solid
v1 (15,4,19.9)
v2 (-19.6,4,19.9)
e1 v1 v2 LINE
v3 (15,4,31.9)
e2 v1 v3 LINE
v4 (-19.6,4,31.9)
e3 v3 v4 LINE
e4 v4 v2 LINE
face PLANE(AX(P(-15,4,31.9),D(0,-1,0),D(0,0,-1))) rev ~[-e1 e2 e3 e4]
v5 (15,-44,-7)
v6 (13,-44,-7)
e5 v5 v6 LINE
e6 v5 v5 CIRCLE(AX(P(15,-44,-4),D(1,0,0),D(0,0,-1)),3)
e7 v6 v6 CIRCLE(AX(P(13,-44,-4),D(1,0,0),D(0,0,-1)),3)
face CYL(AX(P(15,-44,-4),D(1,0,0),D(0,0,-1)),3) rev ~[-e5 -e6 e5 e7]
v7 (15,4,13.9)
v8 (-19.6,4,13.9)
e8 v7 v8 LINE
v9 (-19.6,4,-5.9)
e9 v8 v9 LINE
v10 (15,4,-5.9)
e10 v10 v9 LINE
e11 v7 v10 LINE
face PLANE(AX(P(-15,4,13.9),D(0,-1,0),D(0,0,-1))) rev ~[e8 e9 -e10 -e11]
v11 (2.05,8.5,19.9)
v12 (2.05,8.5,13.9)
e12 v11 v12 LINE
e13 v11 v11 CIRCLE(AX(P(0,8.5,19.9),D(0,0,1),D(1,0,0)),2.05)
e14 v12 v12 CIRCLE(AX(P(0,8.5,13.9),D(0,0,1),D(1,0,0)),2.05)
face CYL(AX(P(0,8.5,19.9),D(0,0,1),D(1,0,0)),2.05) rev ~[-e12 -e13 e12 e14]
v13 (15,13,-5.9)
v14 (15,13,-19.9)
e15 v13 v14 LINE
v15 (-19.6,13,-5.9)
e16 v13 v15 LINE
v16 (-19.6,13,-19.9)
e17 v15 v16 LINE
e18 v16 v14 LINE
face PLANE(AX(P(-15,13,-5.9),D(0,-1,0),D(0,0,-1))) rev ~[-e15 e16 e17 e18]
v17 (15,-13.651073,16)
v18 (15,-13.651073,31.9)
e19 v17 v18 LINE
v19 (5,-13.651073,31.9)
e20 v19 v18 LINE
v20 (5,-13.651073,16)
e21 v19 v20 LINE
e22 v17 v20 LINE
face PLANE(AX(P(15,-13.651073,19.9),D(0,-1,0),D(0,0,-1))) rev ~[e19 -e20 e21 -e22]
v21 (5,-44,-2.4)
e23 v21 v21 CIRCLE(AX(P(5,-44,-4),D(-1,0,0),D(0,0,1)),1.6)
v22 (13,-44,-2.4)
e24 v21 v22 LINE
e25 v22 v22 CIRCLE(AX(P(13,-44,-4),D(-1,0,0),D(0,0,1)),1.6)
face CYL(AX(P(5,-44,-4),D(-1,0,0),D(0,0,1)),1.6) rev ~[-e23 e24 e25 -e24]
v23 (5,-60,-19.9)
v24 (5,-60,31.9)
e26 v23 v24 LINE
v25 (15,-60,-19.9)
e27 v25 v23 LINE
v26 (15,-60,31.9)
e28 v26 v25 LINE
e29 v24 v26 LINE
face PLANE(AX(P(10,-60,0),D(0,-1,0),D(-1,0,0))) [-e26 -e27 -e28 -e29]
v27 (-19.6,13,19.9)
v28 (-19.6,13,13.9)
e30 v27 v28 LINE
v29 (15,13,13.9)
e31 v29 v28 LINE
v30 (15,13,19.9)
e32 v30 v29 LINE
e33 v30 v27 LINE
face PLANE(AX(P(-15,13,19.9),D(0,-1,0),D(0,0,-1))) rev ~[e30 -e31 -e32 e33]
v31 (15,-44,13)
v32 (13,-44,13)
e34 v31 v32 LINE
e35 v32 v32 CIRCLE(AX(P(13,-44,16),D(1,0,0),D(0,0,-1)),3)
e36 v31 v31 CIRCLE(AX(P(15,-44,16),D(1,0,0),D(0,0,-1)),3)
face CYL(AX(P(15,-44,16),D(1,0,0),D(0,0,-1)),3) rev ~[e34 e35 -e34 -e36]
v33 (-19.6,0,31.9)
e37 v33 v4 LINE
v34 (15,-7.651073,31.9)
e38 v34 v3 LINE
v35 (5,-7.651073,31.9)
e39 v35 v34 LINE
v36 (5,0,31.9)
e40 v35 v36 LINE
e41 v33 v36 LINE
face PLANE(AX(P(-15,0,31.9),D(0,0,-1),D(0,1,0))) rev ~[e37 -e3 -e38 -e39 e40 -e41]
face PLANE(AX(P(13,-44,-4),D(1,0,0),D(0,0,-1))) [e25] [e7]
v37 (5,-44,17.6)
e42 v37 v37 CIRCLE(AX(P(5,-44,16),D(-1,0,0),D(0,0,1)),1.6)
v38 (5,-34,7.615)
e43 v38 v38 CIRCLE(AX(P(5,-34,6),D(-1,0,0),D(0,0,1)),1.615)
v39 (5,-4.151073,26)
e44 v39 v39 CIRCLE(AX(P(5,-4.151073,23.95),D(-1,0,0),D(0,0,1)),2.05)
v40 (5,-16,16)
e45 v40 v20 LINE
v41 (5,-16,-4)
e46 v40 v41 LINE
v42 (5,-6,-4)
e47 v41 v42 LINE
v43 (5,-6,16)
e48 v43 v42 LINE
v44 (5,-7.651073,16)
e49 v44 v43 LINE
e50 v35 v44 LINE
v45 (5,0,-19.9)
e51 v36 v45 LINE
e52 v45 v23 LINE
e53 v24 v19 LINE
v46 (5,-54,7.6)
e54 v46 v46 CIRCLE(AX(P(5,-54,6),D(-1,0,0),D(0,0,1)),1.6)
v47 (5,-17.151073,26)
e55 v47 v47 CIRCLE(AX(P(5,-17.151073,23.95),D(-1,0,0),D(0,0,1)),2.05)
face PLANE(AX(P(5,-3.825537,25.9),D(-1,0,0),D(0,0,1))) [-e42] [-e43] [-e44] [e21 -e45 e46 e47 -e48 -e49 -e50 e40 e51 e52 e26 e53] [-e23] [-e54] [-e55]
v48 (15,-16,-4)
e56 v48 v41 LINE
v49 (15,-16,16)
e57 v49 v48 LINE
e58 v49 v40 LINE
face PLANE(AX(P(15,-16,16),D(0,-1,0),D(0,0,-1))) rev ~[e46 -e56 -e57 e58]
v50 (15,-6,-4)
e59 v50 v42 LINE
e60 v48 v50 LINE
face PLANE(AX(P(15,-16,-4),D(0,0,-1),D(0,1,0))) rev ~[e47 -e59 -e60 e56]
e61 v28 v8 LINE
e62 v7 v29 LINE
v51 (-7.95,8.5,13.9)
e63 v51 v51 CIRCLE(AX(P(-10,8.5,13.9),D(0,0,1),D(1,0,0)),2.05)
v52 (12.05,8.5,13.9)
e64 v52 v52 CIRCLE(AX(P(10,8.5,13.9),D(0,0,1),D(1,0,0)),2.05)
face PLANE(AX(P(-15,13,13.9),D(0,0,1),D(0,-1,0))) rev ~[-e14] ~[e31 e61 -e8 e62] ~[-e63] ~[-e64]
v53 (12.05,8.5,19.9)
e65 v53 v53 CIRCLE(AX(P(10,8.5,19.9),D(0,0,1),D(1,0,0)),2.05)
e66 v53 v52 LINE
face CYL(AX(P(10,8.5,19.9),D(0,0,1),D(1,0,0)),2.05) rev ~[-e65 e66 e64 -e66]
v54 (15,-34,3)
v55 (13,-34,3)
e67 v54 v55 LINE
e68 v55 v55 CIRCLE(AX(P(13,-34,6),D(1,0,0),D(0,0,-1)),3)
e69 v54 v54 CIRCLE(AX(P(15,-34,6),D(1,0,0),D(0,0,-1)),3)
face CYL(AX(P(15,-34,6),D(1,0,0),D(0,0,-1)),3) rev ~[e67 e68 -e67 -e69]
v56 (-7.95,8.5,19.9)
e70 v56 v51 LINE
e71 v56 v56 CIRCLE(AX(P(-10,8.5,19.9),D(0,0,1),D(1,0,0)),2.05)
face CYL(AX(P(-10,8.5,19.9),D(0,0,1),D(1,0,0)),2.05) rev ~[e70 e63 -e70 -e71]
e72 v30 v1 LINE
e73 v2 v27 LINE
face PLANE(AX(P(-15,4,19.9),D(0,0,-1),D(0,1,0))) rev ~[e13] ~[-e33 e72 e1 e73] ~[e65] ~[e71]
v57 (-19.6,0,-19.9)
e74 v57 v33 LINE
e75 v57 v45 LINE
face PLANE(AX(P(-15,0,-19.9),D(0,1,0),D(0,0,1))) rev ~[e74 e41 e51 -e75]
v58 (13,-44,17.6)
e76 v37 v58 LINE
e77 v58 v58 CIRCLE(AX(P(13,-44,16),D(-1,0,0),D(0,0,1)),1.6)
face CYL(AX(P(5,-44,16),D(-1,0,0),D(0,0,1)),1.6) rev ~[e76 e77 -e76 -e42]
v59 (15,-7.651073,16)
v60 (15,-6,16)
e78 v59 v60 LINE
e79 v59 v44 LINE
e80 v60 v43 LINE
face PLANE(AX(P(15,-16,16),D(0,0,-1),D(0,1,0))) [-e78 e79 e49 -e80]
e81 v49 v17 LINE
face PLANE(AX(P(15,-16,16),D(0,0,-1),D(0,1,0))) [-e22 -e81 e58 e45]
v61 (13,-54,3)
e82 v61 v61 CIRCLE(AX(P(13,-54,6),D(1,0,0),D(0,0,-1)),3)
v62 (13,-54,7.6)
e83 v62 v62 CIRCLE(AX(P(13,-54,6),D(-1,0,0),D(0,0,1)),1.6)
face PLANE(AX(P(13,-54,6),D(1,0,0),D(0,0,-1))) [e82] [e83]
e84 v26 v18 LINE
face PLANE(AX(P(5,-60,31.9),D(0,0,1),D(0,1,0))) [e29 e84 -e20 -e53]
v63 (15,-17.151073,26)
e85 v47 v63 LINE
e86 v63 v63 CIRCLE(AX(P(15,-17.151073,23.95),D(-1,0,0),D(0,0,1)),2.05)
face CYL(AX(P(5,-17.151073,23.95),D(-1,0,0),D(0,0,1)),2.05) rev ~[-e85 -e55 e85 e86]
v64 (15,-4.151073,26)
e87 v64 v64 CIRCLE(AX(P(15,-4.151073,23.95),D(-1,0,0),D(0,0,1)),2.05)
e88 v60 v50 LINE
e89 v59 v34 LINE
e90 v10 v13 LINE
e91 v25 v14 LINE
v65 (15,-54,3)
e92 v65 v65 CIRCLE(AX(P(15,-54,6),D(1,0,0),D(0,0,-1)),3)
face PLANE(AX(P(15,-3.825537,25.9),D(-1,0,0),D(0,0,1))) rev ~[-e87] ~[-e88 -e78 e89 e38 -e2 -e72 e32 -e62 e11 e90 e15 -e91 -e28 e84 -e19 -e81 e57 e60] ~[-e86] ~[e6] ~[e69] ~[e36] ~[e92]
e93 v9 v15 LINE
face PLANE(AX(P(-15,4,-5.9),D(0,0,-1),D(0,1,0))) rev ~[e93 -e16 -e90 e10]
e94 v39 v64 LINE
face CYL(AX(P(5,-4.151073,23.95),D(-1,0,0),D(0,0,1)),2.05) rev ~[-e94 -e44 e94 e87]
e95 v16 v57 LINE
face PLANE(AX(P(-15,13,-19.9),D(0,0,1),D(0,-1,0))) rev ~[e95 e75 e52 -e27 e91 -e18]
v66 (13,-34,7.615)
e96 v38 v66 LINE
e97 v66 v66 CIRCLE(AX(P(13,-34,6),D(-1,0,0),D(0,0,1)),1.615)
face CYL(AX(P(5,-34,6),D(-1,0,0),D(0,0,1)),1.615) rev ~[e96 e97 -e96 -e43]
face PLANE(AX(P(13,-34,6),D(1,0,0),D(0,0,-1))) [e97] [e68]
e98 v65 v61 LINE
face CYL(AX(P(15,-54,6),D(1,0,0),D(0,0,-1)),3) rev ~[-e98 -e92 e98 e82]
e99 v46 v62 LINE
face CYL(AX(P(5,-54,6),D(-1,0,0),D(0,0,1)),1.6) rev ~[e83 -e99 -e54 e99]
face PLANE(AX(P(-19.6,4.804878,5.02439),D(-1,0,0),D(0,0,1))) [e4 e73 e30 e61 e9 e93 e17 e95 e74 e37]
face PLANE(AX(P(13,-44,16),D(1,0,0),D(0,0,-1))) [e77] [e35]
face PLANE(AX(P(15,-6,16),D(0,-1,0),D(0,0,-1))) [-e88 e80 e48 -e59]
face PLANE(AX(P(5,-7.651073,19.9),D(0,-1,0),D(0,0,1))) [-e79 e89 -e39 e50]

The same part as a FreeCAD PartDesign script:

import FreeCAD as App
import Part
import Sketcher

V = App.Vector
Q = App.Units.Quantity

doc = App.newDocument("Part")
body = doc.addObject("PartDesign::Body", "Body")

sketch1 = body.newObject("Sketcher::SketchObject", "Sketch")
sketch1.AttachmentSupport = (doc.getObject("XZ_Plane"), [""])
sketch1.MapMode = "FlatFace"
sketch1.addGeometry(Part.LineSegment(V(-15, -20, 0), V(-15, 20, 0)), False)
sketch1.addGeometry(Part.LineSegment(V(-15, 20, 0), V(15, 20, 0)), False)
sketch1.addGeometry(Part.LineSegment(V(15, 20, 0), V(15, -20, 0)), False)
sketch1.addGeometry(Part.LineSegment(V(15, -20, 0), V(-15, -20, 0)), False)
sketch1.addConstraint(Sketcher.Constraint("Coincident", 0, 2, 1, 1))
sketch1.addConstraint(Sketcher.Constraint("Coincident", 1, 2, 2, 1))
sketch1.addConstraint(Sketcher.Constraint("Coincident", 2, 2, 3, 1))
sketch1.addConstraint(Sketcher.Constraint("Coincident", 3, 2, 0, 1))
sketch1.addConstraint(Sketcher.Constraint("Vertical", 0))
sketch1.addConstraint(Sketcher.Constraint("Horizontal", 1))
sketch1.addConstraint(Sketcher.Constraint("Vertical", 2))
sketch1.addConstraint(Sketcher.Constraint("Horizontal", 3))
sketch1.addConstraint(Sketcher.Constraint("Symmetric", 0, 2, 2, 2, -1, 1))
sketch1.addConstraint(Sketcher.Constraint("DistanceX", 1, 1, 1, 2, Q("30 mm")))
sketch1.addConstraint(Sketcher.Constraint("DistanceY", 0, 1, 0, 2, Q("39.8 mm")))
pad1 = body.newObject("PartDesign::Pad", "Pad")
pad1.Profile = sketch1
pad1.Length = 4
pad1.Reversed = True

sketch2 = body.newObject("Sketcher::SketchObject", "Sketch001")
sketch2.AttachmentSupport = (doc.getObject("XZ_Plane"), [""])
sketch2.MapMode = "FlatFace"
sketch2.AttachmentOffset = App.Placement(V(0, 0, -4), App.Rotation())
sketch2.addGeometry(Part.LineSegment(V(-15, -20, 0), V(-15, -6, 0)), False)
sketch2.addGeometry(Part.LineSegment(V(-15, -6, 0), V(15, -6, 0)), False)
sketch2.addGeometry(Part.LineSegment(V(15, -6, 0), V(15, -20, 0)), False)
sketch2.addGeometry(Part.LineSegment(V(15, -20, 0), V(-15, -20, 0)), False)
sketch2.addConstraint(Sketcher.Constraint("Coincident", 0, 2, 1, 1))
sketch2.addConstraint(Sketcher.Constraint("Coincident", 1, 2, 2, 1))
sketch2.addConstraint(Sketcher.Constraint("Coincident", 2, 2, 3, 1))
sketch2.addConstraint(Sketcher.Constraint("Coincident", 3, 2, 0, 1))
sketch2.addConstraint(Sketcher.Constraint("Vertical", 0))
sketch2.addConstraint(Sketcher.Constraint("Horizontal", 1))
sketch2.addConstraint(Sketcher.Constraint("Vertical", 2))
sketch2.addConstraint(Sketcher.Constraint("Horizontal", 3))
sketch2.addConstraint(Sketcher.Constraint("DistanceX", 1, 1, 1, 2, Q("30 mm")))
sketch2.addConstraint(Sketcher.Constraint("DistanceY", 0, 1, 0, 2, Q("14 mm")))
sketch2.addConstraint(Sketcher.Constraint("DistanceX", 0, 2, -1, 1, Q("15 mm")))
sketch2.addConstraint(Sketcher.Constraint("DistanceY", 0, 2, -1, 1, Q("5.9 mm")))
pad2 = body.newObject("PartDesign::Pad", "Pad001")
pad2.Profile = sketch2
pad2.Length = 9
pad2.Reversed = True

sketch3 = body.newObject("Sketcher::SketchObject", "Sketch002")
sketch3.AttachmentSupport = (doc.getObject("XZ_Plane"), [""])
sketch3.MapMode = "FlatFace"
sketch3.AttachmentOffset = App.Placement(V(0, 0, -4), App.Rotation())
sketch3.addGeometry(Part.LineSegment(V(-15, 14, 0), V(-15, 20, 0)), False)
sketch3.addGeometry(Part.LineSegment(V(-15, 20, 0), V(15, 20, 0)), False)
sketch3.addGeometry(Part.LineSegment(V(15, 20, 0), V(15, 14, 0)), False)
sketch3.addGeometry(Part.LineSegment(V(15, 14, 0), V(-15, 14, 0)), False)
sketch3.addConstraint(Sketcher.Constraint("Coincident", 0, 2, 1, 1))
sketch3.addConstraint(Sketcher.Constraint("Coincident", 1, 2, 2, 1))
sketch3.addConstraint(Sketcher.Constraint("Coincident", 2, 2, 3, 1))
sketch3.addConstraint(Sketcher.Constraint("Coincident", 3, 2, 0, 1))
sketch3.addConstraint(Sketcher.Constraint("Vertical", 0))
sketch3.addConstraint(Sketcher.Constraint("Horizontal", 1))
sketch3.addConstraint(Sketcher.Constraint("Vertical", 2))
sketch3.addConstraint(Sketcher.Constraint("Horizontal", 3))
sketch3.addConstraint(Sketcher.Constraint("DistanceX", 1, 1, 1, 2, Q("30 mm")))
sketch3.addConstraint(Sketcher.Constraint("DistanceY", 0, 1, 0, 2, Q("6 mm")))
sketch3.addConstraint(Sketcher.Constraint("DistanceX", 0, 2, -1, 1, Q("15 mm")))
sketch3.addConstraint(Sketcher.Constraint("DistanceY", -1, 1, 0, 2, Q("19.9 mm")))
pad3 = body.newObject("PartDesign::Pad", "Pad002")
pad3.Profile = sketch3
pad3.Length = 9
pad3.Reversed = True

sketch4 = body.newObject("Sketcher::SketchObject", "Sketch003")
sketch4.AttachmentSupport = (doc.getObject("XZ_Plane"), [""])
sketch4.MapMode = "FlatFace"
sketch4.addGeometry(Part.LineSegment(V(15, -20, 0), V(15, 20, 0)), False)
sketch4.addGeometry(Part.LineSegment(V(15, 20, 0), V(5, 20, 0)), False)
sketch4.addGeometry(Part.LineSegment(V(5, 20, 0), V(5, -20, 0)), False)
sketch4.addGeometry(Part.LineSegment(V(5, -20, 0), V(15, -20, 0)), False)
sketch4.addConstraint(Sketcher.Constraint("Coincident", 0, 2, 1, 1))
sketch4.addConstraint(Sketcher.Constraint("Coincident", 1, 2, 2, 1))
sketch4.addConstraint(Sketcher.Constraint("Coincident", 2, 2, 3, 1))
sketch4.addConstraint(Sketcher.Constraint("Coincident", 3, 2, 0, 1))
sketch4.addConstraint(Sketcher.Constraint("Vertical", 0))
sketch4.addConstraint(Sketcher.Constraint("Horizontal", 1))
sketch4.addConstraint(Sketcher.Constraint("Vertical", 2))
sketch4.addConstraint(Sketcher.Constraint("Horizontal", 3))
sketch4.addConstraint(Sketcher.Constraint("DistanceX", 1, 2, 1, 1, Q("10 mm")))
sketch4.addConstraint(Sketcher.Constraint("DistanceY", 0, 1, 0, 2, Q("39.8 mm")))
sketch4.addConstraint(Sketcher.Constraint("DistanceX", -1, 1, 0, 2, Q("15 mm")))
sketch4.addConstraint(Sketcher.Constraint("DistanceY", -1, 1, 0, 2, Q("19.9 mm")))
pad4 = body.newObject("PartDesign::Pad", "Pad003")
pad4.Profile = sketch4
pad4.Length = 60

sketch5 = body.newObject("Sketcher::SketchObject", "Sketch004")
sketch5.AttachmentSupport = (doc.getObject("YZ_Plane"), [""])
sketch5.MapMode = "FlatFace"
sketch5.AttachmentOffset = App.Placement(V(0, 0, 15), App.Rotation())
sketch5.addGeometry(Part.LineSegment(V(-6, 16, 0), V(-16, 16, 0)), False)
sketch5.addGeometry(Part.LineSegment(V(-16, 16, 0), V(-16, -4, 0)), False)
sketch5.addGeometry(Part.LineSegment(V(-16, -4, 0), V(-6, -4, 0)), False)
sketch5.addGeometry(Part.LineSegment(V(-6, -4, 0), V(-6, 16, 0)), False)
sketch5.addConstraint(Sketcher.Constraint("Coincident", 0, 2, 1, 1))
sketch5.addConstraint(Sketcher.Constraint("Coincident", 1, 2, 2, 1))
sketch5.addConstraint(Sketcher.Constraint("Coincident", 2, 2, 3, 1))
sketch5.addConstraint(Sketcher.Constraint("Coincident", 3, 2, 0, 1))
sketch5.addConstraint(Sketcher.Constraint("Horizontal", 0))
sketch5.addConstraint(Sketcher.Constraint("Vertical", 1))
sketch5.addConstraint(Sketcher.Constraint("Horizontal", 2))
sketch5.addConstraint(Sketcher.Constraint("Vertical", 3))
sketch5.addConstraint(Sketcher.Constraint("DistanceX", 0, 2, 0, 1, Q("10 mm")))
sketch5.addConstraint(Sketcher.Constraint("DistanceY", 1, 2, 1, 1, Q("20 mm")))
sketch5.addConstraint(Sketcher.Constraint("DistanceX", 0, 2, -1, 1, Q("16 mm")))
sketch5.addConstraint(Sketcher.Constraint("DistanceY", -1, 1, 0, 2, Q("16 mm")))
pocket1 = body.newObject("PartDesign::Pocket", "Pocket")
pocket1.Profile = sketch5
pocket1.Type = "ThroughAll"

sketch6 = body.newObject("Sketcher::SketchObject", "Sketch005")
sketch6.AttachmentSupport = (doc.getObject("YZ_Plane"), [""])
sketch6.MapMode = "FlatFace"
sketch6.AttachmentOffset = App.Placement(V(0, 0, 15), App.Rotation())
sketch6.addGeometry(Part.LineSegment(V(-7.7, 19.9, 0), V(-13.7, 19.9, 0)), False)
sketch6.addGeometry(Part.LineSegment(V(-13.7, 19.9, 0), V(-13.7, 16, 0)), False)
sketch6.addGeometry(Part.LineSegment(V(-13.7, 16, 0), V(-7.7, 16, 0)), False)
sketch6.addGeometry(Part.LineSegment(V(-7.7, 16, 0), V(-7.7, 19.9, 0)), False)
sketch6.addConstraint(Sketcher.Constraint("Coincident", 0, 2, 1, 1))
sketch6.addConstraint(Sketcher.Constraint("Coincident", 1, 2, 2, 1))
sketch6.addConstraint(Sketcher.Constraint("Coincident", 2, 2, 3, 1))
sketch6.addConstraint(Sketcher.Constraint("Coincident", 3, 2, 0, 1))
sketch6.addConstraint(Sketcher.Constraint("Horizontal", 0))
sketch6.addConstraint(Sketcher.Constraint("Vertical", 1))
sketch6.addConstraint(Sketcher.Constraint("Horizontal", 2))
sketch6.addConstraint(Sketcher.Constraint("Vertical", 3))
sketch6.addConstraint(Sketcher.Constraint("DistanceX", 0, 2, 0, 1, Q("6 mm")))
sketch6.addConstraint(Sketcher.Constraint("DistanceY", 1, 2, 1, 1, Q("3.9 mm")))
sketch6.addConstraint(Sketcher.Constraint("DistanceY", -1, 1, 1, 2, Q("16 mm")))
sketch6.addConstraint(Sketcher.Constraint("DistanceX", 0, 2, -1, 1, Q("13.651073 mm")))
pocket2 = body.newObject("PartDesign::Pocket", "Pocket001")
pocket2.Profile = sketch6
pocket2.Type = "ThroughAll"

sketch7 = body.newObject("Sketcher::SketchObject", "Sketch006")
sketch7.AttachmentSupport = (doc.getObject("YZ_Plane"), [""])
sketch7.MapMode = "FlatFace"
sketch7.AttachmentOffset = App.Placement(V(0, 0, -15), App.Rotation())
sketch7.addGeometry(Part.LineSegment(V(4, 19.9, 0), V(0, 19.9, 0)), False)
sketch7.addGeometry(Part.LineSegment(V(0, 19.9, 0), V(0, 31.9, 0)), False)
sketch7.addGeometry(Part.LineSegment(V(0, 31.9, 0), V(4, 31.9, 0)), False)
sketch7.addGeometry(Part.LineSegment(V(4, 31.9, 0), V(4, 19.9, 0)), False)
sketch7.addConstraint(Sketcher.Constraint("Coincident", 0, 2, 1, 1))
sketch7.addConstraint(Sketcher.Constraint("Coincident", 1, 2, 2, 1))
sketch7.addConstraint(Sketcher.Constraint("Coincident", 2, 2, 3, 1))
sketch7.addConstraint(Sketcher.Constraint("Coincident", 3, 2, 0, 1))
sketch7.addConstraint(Sketcher.Constraint("Horizontal", 0))
sketch7.addConstraint(Sketcher.Constraint("Vertical", 1))
sketch7.addConstraint(Sketcher.Constraint("Horizontal", 2))
sketch7.addConstraint(Sketcher.Constraint("Vertical", 3))
sketch7.addConstraint(Sketcher.Constraint("PointOnObject", 0, 2, -2))
sketch7.addConstraint(Sketcher.Constraint("DistanceX", 0, 2, 0, 1, Q("4 mm")))
sketch7.addConstraint(Sketcher.Constraint("DistanceY", 1, 1, 1, 2, Q("12 mm")))
sketch7.addConstraint(Sketcher.Constraint("DistanceY", -1, 1, 0, 2, Q("19.9 mm")))
pad5 = body.newObject("PartDesign::Pad", "Pad004")
pad5.Profile = sketch7
pad5.Length = 30

sketch8 = body.newObject("Sketcher::SketchObject", "Sketch007")
sketch8.AttachmentSupport = (doc.getObject("YZ_Plane"), [""])
sketch8.MapMode = "FlatFace"
sketch8.AttachmentOffset = App.Placement(V(0, 0, 5), App.Rotation())
sketch8.addGeometry(Part.LineSegment(V(0, 20, 0), V(-8, 20, 0)), False)
sketch8.addGeometry(Part.LineSegment(V(-8, 20, 0), V(-8, 32, 0)), False)
sketch8.addGeometry(Part.LineSegment(V(-8, 32, 0), V(0, 32, 0)), False)
sketch8.addGeometry(Part.LineSegment(V(0, 32, 0), V(0, 20, 0)), False)
sketch8.addGeometry(Part.LineSegment(V(-14, 20, 0), V(-60, 20, 0)), False)
sketch8.addGeometry(Part.LineSegment(V(-60, 20, 0), V(-60, 32, 0)), False)
sketch8.addGeometry(Part.LineSegment(V(-60, 32, 0), V(-14, 32, 0)), False)
sketch8.addGeometry(Part.LineSegment(V(-14, 32, 0), V(-14, 20, 0)), False)
sketch8.addConstraint(Sketcher.Constraint("Coincident", 0, 2, 1, 1))
sketch8.addConstraint(Sketcher.Constraint("Coincident", 1, 2, 2, 1))
sketch8.addConstraint(Sketcher.Constraint("Coincident", 2, 2, 3, 1))
sketch8.addConstraint(Sketcher.Constraint("Coincident", 3, 2, 0, 1))
sketch8.addConstraint(Sketcher.Constraint("Coincident", 4, 2, 5, 1))
sketch8.addConstraint(Sketcher.Constraint("Coincident", 5, 2, 6, 1))
sketch8.addConstraint(Sketcher.Constraint("Coincident", 6, 2, 7, 1))
sketch8.addConstraint(Sketcher.Constraint("Coincident", 7, 2, 4, 1))
sketch8.addConstraint(Sketcher.Constraint("Horizontal", 0))
sketch8.addConstraint(Sketcher.Constraint("Vertical", 1))
sketch8.addConstraint(Sketcher.Constraint("Horizontal", 2))
sketch8.addConstraint(Sketcher.Constraint("Vertical", 3))
sketch8.addConstraint(Sketcher.Constraint("Horizontal", 4))
sketch8.addConstraint(Sketcher.Constraint("Vertical", 5))
sketch8.addConstraint(Sketcher.Constraint("Horizontal", 6))
sketch8.addConstraint(Sketcher.Constraint("Vertical", 7))
sketch8.addConstraint(Sketcher.Constraint("PointOnObject", 2, 2, -2))
sketch8.addConstraint(Sketcher.Constraint("Horizontal", 3, 2, 4, 2))
sketch8.addConstraint(Sketcher.Constraint("Horizontal", 2, 2, 5, 2))
sketch8.addConstraint(Sketcher.Constraint("DistanceY", 1, 1, 1, 2, Q("12 mm")))
sketch8.addConstraint(Sketcher.Constraint("DistanceX", 4, 2, -1, 1, Q("60 mm")))
sketch8.addConstraint(Sketcher.Constraint("DistanceX", 6, 2, 1, 2, Q("6 mm")))
sketch8.addConstraint(Sketcher.Constraint("DistanceY", -1, 1, 0, 2, Q("19.9 mm")))
sketch8.addConstraint(Sketcher.Constraint("DistanceX", 0, 2, 0, 1, Q("7.651073 mm")))
pad6 = body.newObject("PartDesign::Pad", "Pad005")
pad6.Profile = sketch8
pad6.Length = 10

sketch9 = body.newObject("Sketcher::SketchObject", "Sketch008")
sketch9.AttachmentSupport = (doc.getObject("YZ_Plane"), [""])
sketch9.MapMode = "FlatFace"
sketch9.AttachmentOffset = App.Placement(V(0, 0, 5), App.Rotation())
sketch9.addGeometry(Part.Circle(V(-44, -4, 0), V(0, 0, 1), 1.6), False)
sketch9.addGeometry(Part.Circle(V(-34, 6, 0), V(0, 0, 1), 1.6), False)
sketch9.addGeometry(Part.Circle(V(-44, 16, 0), V(0, 0, 1), 1.6), False)
sketch9.addGeometry(Part.Circle(V(-54, 6, 0), V(0, 0, 1), 1.6), False)
sketch9.addConstraint(Sketcher.Constraint("Equal", 0, 2))
sketch9.addConstraint(Sketcher.Constraint("Equal", 2, 3))
sketch9.addConstraint(Sketcher.Constraint("Horizontal", 1, 3, 3, 3))
sketch9.addConstraint(Sketcher.Constraint("Vertical", 0, 3, 2, 3))
sketch9.addConstraint(Sketcher.Constraint("Diameter", 0, Q("3.2 mm")))
sketch9.addConstraint(Sketcher.Constraint("Diameter", 1, Q("3.23 mm")))
sketch9.addConstraint(Sketcher.Constraint("DistanceX", 0, 3, -1, 1, Q("44 mm")))
sketch9.addConstraint(Sketcher.Constraint("DistanceY", 0, 3, -1, 1, Q("4 mm")))
sketch9.addConstraint(Sketcher.Constraint("DistanceX", 1, 3, -1, 1, Q("34 mm")))
sketch9.addConstraint(Sketcher.Constraint("DistanceY", -1, 1, 1, 3, Q("6 mm")))
sketch9.addConstraint(Sketcher.Constraint("DistanceY", -1, 1, 2, 3, Q("16 mm")))
sketch9.addConstraint(Sketcher.Constraint("DistanceX", 3, 3, -1, 1, Q("54 mm")))
pocket3 = body.newObject("PartDesign::Pocket", "Pocket002")
pocket3.Profile = sketch9
pocket3.Type = "ThroughAll"
pocket3.Reversed = True

sketch10 = body.newObject("Sketcher::SketchObject", "Sketch009")
sketch10.AttachmentSupport = (doc.getObject("YZ_Plane"), [""])
sketch10.MapMode = "FlatFace"
sketch10.AttachmentOffset = App.Placement(V(0, 0, 15), App.Rotation())
sketch10.addGeometry(Part.Circle(V(-34, 6, 0), V(0, 0, 1), 3), False)
sketch10.addGeometry(Part.Circle(V(-44, 16, 0), V(0, 0, 1), 3), False)
sketch10.addGeometry(Part.Circle(V(-54, 6, 0), V(0, 0, 1), 3), False)
sketch10.addGeometry(Part.Circle(V(-44, -4, 0), V(0, 0, 1), 3), False)
sketch10.addConstraint(Sketcher.Constraint("Equal", 0, 1))
sketch10.addConstraint(Sketcher.Constraint("Equal", 1, 2))
sketch10.addConstraint(Sketcher.Constraint("Equal", 2, 3))
sketch10.addConstraint(Sketcher.Constraint("Horizontal", 0, 3, 2, 3))
sketch10.addConstraint(Sketcher.Constraint("Vertical", 1, 3, 3, 3))
sketch10.addConstraint(Sketcher.Constraint("Diameter", 0, Q("6 mm")))
sketch10.addConstraint(Sketcher.Constraint("DistanceX", 0, 3, -1, 1, Q("34 mm")))
sketch10.addConstraint(Sketcher.Constraint("DistanceY", -1, 1, 0, 3, Q("6 mm")))
sketch10.addConstraint(Sketcher.Constraint("DistanceX", 1, 3, -1, 1, Q("44 mm")))
sketch10.addConstraint(Sketcher.Constraint("DistanceY", -1, 1, 1, 3, Q("16 mm")))
sketch10.addConstraint(Sketcher.Constraint("DistanceX", 2, 3, -1, 1, Q("54 mm")))
sketch10.addConstraint(Sketcher.Constraint("DistanceY", 3, 3, -1, 1, Q("4 mm")))
pocket4 = body.newObject("PartDesign::Pocket", "Pocket003")
pocket4.Profile = sketch10
pocket4.Length = 2

sketch11 = body.newObject("Sketcher::SketchObject", "Sketch010")
sketch11.AttachmentSupport = (doc.getObject("XY_Plane"), [""])
sketch11.MapMode = "FlatFace"
sketch11.AttachmentOffset = App.Placement(V(0, 0, 19.9), App.Rotation())
sketch11.addGeometry(Part.Circle(V(-10, 8.5, 0), V(0, 0, 1), 2), False)
sketch11.addConstraint(Sketcher.Constraint("Diameter", 0, Q("4.1 mm")))
sketch11.addConstraint(Sketcher.Constraint("DistanceX", 0, 3, -1, 1, Q("10 mm")))
sketch11.addConstraint(Sketcher.Constraint("DistanceY", -1, 1, 0, 3, Q("8.5 mm")))
pocket5 = body.newObject("PartDesign::Pocket", "Pocket004")
pocket5.Profile = sketch11
pocket5.Type = "UpToFirst"

sketch12 = body.newObject("Sketcher::SketchObject", "Sketch011")
sketch12.AttachmentSupport = (doc.getObject("XY_Plane"), [""])
sketch12.MapMode = "FlatFace"
sketch12.AttachmentOffset = App.Placement(V(0, 0, 19.9), App.Rotation())
sketch12.addGeometry(Part.Circle(V(0, 8.5, 0), V(0, 0, 1), 2), False)
sketch12.addConstraint(Sketcher.Constraint("PointOnObject", 0, 3, -2))
sketch12.addConstraint(Sketcher.Constraint("Diameter", 0, Q("4.1 mm")))
sketch12.addConstraint(Sketcher.Constraint("DistanceY", -1, 1, 0, 3, Q("8.5 mm")))
pocket6 = body.newObject("PartDesign::Pocket", "Pocket005")
pocket6.Profile = sketch12
pocket6.Type = "UpToFirst"

sketch13 = body.newObject("Sketcher::SketchObject", "Sketch012")
sketch13.AttachmentSupport = (doc.getObject("XY_Plane"), [""])
sketch13.MapMode = "FlatFace"
sketch13.AttachmentOffset = App.Placement(V(0, 0, 19.9), App.Rotation())
sketch13.addGeometry(Part.Circle(V(10, 8.5, 0), V(0, 0, 1), 2), False)
sketch13.addConstraint(Sketcher.Constraint("Diameter", 0, Q("4.1 mm")))
sketch13.addConstraint(Sketcher.Constraint("DistanceX", -1, 1, 0, 3, Q("10 mm")))
sketch13.addConstraint(Sketcher.Constraint("DistanceY", -1, 1, 0, 3, Q("8.5 mm")))
pocket7 = body.newObject("PartDesign::Pocket", "Pocket006")
pocket7.Profile = sketch13
pocket7.Type = "UpToFirst"

sketch14 = body.newObject("Sketcher::SketchObject", "Sketch013")
sketch14.AttachmentSupport = (doc.getObject("YZ_Plane"), [""])
sketch14.MapMode = "FlatFace"
sketch14.AttachmentOffset = App.Placement(V(0, 0, 5), App.Rotation())
sketch14.addGeometry(Part.Circle(V(-4.2, 23.9, 0), V(0, 0, 1), 2), False)
sketch14.addGeometry(Part.Circle(V(-17.2, 23.9, 0), V(0, 0, 1), 2), False)
sketch14.addConstraint(Sketcher.Constraint("Equal", 0, 1))
sketch14.addConstraint(Sketcher.Constraint("Horizontal", 0, 3, 1, 3))
sketch14.addConstraint(Sketcher.Constraint("Diameter", 0, Q("4.1 mm")))
sketch14.addConstraint(Sketcher.Constraint("DistanceX", 1, 3, 0, 3, Q("13 mm")))
sketch14.addConstraint(Sketcher.Constraint("DistanceY", -1, 1, 0, 3, Q("23.95 mm")))
sketch14.addConstraint(Sketcher.Constraint("DistanceX", 0, 3, -1, 1, Q("4.151073 mm")))
pocket8 = body.newObject("PartDesign::Pocket", "Pocket007")
pocket8.Profile = sketch14
pocket8.Type = "ThroughAll"
pocket8.Reversed = True

sketch15 = body.newObject("Sketcher::SketchObject", "Sketch014")
sketch15.AttachmentSupport = (doc.getObject("YZ_Plane"), [""])
sketch15.MapMode = "FlatFace"
sketch15.AttachmentOffset = App.Placement(V(0, 0, -15), App.Rotation())
sketch15.addGeometry(Part.LineSegment(V(0, 31.9, 0), V(4, 31.9, 0)), False)
sketch15.addGeometry(Part.LineSegment(V(4, 31.9, 0), V(4, 19.9, 0)), False)
sketch15.addGeometry(Part.LineSegment(V(4, 19.9, 0), V(13, 19.9, 0)), False)
sketch15.addGeometry(Part.LineSegment(V(13, 19.9, 0), V(13, 13.9, 0)), False)
sketch15.addGeometry(Part.LineSegment(V(13, 13.9, 0), V(4, 13.9, 0)), False)
sketch15.addGeometry(Part.LineSegment(V(4, 13.9, 0), V(4, -5.9, 0)), False)
sketch15.addGeometry(Part.LineSegment(V(4, -5.9, 0), V(13, -5.9, 0)), False)
sketch15.addGeometry(Part.LineSegment(V(13, -5.9, 0), V(13, -19.9, 0)), False)
sketch15.addGeometry(Part.LineSegment(V(13, -19.9, 0), V(0, -19.9, 0)), False)
sketch15.addGeometry(Part.LineSegment(V(0, -19.9, 0), V(0, 31.9, 0)), False)
sketch15.addConstraint(Sketcher.Constraint("Coincident", 0, 2, 1, 1))
sketch15.addConstraint(Sketcher.Constraint("Coincident", 1, 2, 2, 1))
sketch15.addConstraint(Sketcher.Constraint("Coincident", 2, 2, 3, 1))
sketch15.addConstraint(Sketcher.Constraint("Coincident", 3, 2, 4, 1))
sketch15.addConstraint(Sketcher.Constraint("Coincident", 4, 2, 5, 1))
sketch15.addConstraint(Sketcher.Constraint("Coincident", 5, 2, 6, 1))
sketch15.addConstraint(Sketcher.Constraint("Coincident", 6, 2, 7, 1))
sketch15.addConstraint(Sketcher.Constraint("Coincident", 7, 2, 8, 1))
sketch15.addConstraint(Sketcher.Constraint("Coincident", 8, 2, 9, 1))
sketch15.addConstraint(Sketcher.Constraint("Coincident", 9, 2, 0, 1))
sketch15.addConstraint(Sketcher.Constraint("Horizontal", 0))
sketch15.addConstraint(Sketcher.Constraint("Vertical", 1))
sketch15.addConstraint(Sketcher.Constraint("Horizontal", 2))
sketch15.addConstraint(Sketcher.Constraint("Vertical", 3))
sketch15.addConstraint(Sketcher.Constraint("Horizontal", 4))
sketch15.addConstraint(Sketcher.Constraint("Vertical", 5))
sketch15.addConstraint(Sketcher.Constraint("Horizontal", 6))
sketch15.addConstraint(Sketcher.Constraint("Vertical", 7))
sketch15.addConstraint(Sketcher.Constraint("Horizontal", 8))
sketch15.addConstraint(Sketcher.Constraint("Vertical", 9))
sketch15.addConstraint(Sketcher.Constraint("Symmetric", 2, 2, 7, 2, -1))
sketch15.addConstraint(Sketcher.Constraint("PointOnObject", 8, 2, -2))
sketch15.addConstraint(Sketcher.Constraint("Vertical", 1, 2, 4, 2))
sketch15.addConstraint(Sketcher.Constraint("DistanceX", 0, 1, 0, 2, Q("4 mm")))
sketch15.addConstraint(Sketcher.Constraint("DistanceX", 2, 1, 2, 2, Q("9 mm")))
sketch15.addConstraint(Sketcher.Constraint("DistanceY", 1, 2, 1, 1, Q("12 mm")))
sketch15.addConstraint(Sketcher.Constraint("DistanceY", 3, 2, 3, 1, Q("6 mm")))
sketch15.addConstraint(Sketcher.Constraint("DistanceY", 7, 2, 7, 1, Q("14 mm")))
sketch15.addConstraint(Sketcher.Constraint("DistanceY", 5, 2, 5, 1, Q("19.8 mm")))
pad7 = body.newObject("PartDesign::Pad", "Pad006")
pad7.Profile = sketch15
pad7.Length = 4.6
pad7.Reversed = True

doc.recompute()
